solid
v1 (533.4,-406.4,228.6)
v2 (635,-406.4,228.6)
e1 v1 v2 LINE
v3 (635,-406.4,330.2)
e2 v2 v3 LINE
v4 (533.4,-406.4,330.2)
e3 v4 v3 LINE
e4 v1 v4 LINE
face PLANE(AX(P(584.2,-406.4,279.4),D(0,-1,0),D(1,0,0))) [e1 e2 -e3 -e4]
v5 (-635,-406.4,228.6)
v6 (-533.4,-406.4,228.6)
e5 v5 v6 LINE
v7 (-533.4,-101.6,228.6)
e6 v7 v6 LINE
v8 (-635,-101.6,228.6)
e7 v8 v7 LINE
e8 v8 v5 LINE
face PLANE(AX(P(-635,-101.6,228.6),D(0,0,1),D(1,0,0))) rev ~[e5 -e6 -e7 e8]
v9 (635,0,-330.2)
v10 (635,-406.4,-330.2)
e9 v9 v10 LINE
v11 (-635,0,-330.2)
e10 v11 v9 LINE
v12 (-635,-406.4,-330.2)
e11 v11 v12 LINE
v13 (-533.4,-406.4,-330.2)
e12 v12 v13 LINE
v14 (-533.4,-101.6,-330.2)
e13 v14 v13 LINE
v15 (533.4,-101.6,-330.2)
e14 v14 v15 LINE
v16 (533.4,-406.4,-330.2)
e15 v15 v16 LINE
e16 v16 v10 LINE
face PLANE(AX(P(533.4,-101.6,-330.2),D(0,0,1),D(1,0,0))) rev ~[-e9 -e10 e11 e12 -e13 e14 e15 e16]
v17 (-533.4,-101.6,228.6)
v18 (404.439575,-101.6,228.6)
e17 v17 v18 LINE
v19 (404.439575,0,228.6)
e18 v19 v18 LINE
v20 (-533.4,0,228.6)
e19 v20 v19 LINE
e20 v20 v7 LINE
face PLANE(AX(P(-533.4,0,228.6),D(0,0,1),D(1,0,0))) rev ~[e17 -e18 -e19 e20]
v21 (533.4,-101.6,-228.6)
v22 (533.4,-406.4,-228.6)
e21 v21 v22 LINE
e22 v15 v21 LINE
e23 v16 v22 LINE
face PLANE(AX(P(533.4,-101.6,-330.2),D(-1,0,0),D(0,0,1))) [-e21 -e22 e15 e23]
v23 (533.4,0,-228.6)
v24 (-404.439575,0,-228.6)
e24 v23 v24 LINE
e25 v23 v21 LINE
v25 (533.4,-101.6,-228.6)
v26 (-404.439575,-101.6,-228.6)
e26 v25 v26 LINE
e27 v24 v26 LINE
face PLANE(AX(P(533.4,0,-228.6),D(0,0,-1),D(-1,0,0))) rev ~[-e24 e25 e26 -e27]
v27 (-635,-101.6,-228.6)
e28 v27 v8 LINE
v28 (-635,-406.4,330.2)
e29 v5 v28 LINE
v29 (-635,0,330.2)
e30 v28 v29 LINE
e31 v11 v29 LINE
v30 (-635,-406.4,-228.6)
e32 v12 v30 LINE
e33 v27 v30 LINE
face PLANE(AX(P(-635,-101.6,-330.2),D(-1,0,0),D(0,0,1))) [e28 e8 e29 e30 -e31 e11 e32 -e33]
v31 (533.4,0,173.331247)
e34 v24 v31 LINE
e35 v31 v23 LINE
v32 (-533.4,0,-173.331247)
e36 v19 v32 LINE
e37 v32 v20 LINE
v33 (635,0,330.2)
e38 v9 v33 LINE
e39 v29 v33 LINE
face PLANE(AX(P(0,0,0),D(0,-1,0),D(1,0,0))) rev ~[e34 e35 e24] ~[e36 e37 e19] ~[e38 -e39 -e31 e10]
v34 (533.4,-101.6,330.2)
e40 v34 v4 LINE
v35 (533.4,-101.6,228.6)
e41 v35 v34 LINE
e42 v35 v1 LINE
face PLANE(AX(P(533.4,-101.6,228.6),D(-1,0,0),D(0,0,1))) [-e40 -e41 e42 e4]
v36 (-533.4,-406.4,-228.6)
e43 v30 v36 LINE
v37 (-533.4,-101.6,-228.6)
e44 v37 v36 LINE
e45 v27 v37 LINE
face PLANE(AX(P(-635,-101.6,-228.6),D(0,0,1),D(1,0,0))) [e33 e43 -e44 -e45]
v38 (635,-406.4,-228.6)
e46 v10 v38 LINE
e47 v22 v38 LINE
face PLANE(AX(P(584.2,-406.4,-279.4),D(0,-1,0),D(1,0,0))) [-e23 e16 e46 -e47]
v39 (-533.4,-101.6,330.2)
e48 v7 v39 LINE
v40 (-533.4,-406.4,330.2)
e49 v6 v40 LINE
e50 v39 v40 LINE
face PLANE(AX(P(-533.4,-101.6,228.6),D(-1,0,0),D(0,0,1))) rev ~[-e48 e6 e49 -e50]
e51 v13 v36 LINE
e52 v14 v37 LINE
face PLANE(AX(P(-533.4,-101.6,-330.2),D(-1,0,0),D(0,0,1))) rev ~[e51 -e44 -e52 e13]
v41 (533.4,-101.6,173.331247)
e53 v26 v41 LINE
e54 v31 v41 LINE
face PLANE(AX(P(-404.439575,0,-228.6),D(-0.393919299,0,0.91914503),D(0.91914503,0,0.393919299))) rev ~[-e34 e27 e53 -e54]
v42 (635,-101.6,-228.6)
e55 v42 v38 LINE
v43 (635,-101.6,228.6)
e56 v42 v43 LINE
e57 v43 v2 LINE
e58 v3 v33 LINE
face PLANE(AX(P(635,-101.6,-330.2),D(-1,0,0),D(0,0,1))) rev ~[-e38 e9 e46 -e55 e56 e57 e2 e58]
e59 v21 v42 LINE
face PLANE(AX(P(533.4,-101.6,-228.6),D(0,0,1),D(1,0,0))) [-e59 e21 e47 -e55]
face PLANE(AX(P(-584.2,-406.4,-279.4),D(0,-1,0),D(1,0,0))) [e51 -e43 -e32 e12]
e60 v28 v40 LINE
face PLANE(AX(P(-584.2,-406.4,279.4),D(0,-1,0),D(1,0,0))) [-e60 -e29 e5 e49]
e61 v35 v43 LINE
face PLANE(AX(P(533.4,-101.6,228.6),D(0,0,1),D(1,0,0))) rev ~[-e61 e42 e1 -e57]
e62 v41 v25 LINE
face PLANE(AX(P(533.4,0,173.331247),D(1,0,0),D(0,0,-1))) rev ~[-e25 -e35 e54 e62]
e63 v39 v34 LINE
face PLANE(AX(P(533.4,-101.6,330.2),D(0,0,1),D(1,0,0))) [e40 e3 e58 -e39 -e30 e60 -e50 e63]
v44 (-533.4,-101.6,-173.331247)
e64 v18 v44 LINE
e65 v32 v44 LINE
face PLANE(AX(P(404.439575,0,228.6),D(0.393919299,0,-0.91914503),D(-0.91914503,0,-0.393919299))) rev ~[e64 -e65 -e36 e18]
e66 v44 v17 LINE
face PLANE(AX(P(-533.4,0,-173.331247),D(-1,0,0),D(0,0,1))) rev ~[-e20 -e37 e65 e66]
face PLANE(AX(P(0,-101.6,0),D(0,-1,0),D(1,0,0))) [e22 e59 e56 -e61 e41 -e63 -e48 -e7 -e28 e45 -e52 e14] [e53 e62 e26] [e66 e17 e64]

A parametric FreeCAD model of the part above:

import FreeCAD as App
import Part
import Sketcher
Q = App.Units.Quantity

doc = App.newDocument("Part")
body = doc.addObject("PartDesign::Body", "Body")

# Sketch on XZ plane
sketch1 = doc.addObject("Sketcher::SketchObject", "Sketch")
body.addObject(sketch1)
sketch1.AttachmentSupport = (doc.XZ_Plane, [""])
sketch1.MapMode = "FlatFace"
sketch1.addGeometry(Part.LineSegment(App.Vector(-635, 330, 0), App.Vector(-635, -330, 0)), False)
sketch1.addGeometry(Part.LineSegment(App.Vector(-635, -330, 0), App.Vector(635, -330, 0)), False)
sketch1.addGeometry(Part.LineSegment(App.Vector(635, -330, 0), App.Vector(635, 330, 0)), False)
sketch1.addGeometry(Part.LineSegment(App.Vector(635, 330, 0), App.Vector(-635, 330, 0)), False)
sketch1.addGeometry(Part.LineSegment(App.Vector(533, 173, 0), App.Vector(533, -229, 0)), False)
sketch1.addGeometry(Part.LineSegment(App.Vector(533, -229, 0), App.Vector(-404, -229, 0)), False)
sketch1.addGeometry(Part.LineSegment(App.Vector(-404, -229, 0), App.Vector(533, 173, 0)), False)
sketch1.addGeometry(Part.LineSegment(App.Vector(-533, -173, 0), App.Vector(-533, 229, 0)), False)
sketch1.addGeometry(Part.LineSegment(App.Vector(-533, 229, 0), App.Vector(404, 229, 0)), False)
sketch1.addGeometry(Part.LineSegment(App.Vector(404, 229, 0), App.Vector(-533, -173, 0)), False)
sketch1.addConstraint(Sketcher.Constraint("Coincident", 0, 2, 1, 1))
sketch1.addConstraint(Sketcher.Constraint("Coincident", 1, 2, 2, 1))
sketch1.addConstraint(Sketcher.Constraint("Coincident", 2, 2, 3, 1))
sketch1.addConstraint(Sketcher.Constraint("Coincident", 3, 2, 0, 1))
sketch1.addConstraint(Sketcher.Constraint("Coincident", 4, 2, 5, 1))
sketch1.addConstraint(Sketcher.Constraint("Coincident", 5, 2, 6, 1))
sketch1.addConstraint(Sketcher.Constraint("Coincident", 6, 2, 4, 1))
sketch1.addConstraint(Sketcher.Constraint("Coincident", 7, 2, 8, 1))
sketch1.addConstraint(Sketcher.Constraint("Coincident", 8, 2, 9, 1))
sketch1.addConstraint(Sketcher.Constraint("Coincident", 9, 2, 7, 1))
sketch1.addConstraint(Sketcher.Constraint("Vertical", 0))
sketch1.addConstraint(Sketcher.Constraint("Horizontal", 1))
sketch1.addConstraint(Sketcher.Constraint("Vertical", 2))
sketch1.addConstraint(Sketcher.Constraint("Horizontal", 3))
sketch1.addConstraint(Sketcher.Constraint("Vertical", 4))
sketch1.addConstraint(Sketcher.Constraint("Horizontal", 5))
sketch1.addConstraint(Sketcher.Constraint("Vertical", 7))
sketch1.addConstraint(Sketcher.Constraint("Horizontal", 8))
sketch1.addConstraint(Sketcher.Constraint("Symmetric", 0, 2, 2, 2, -1, 1))
sketch1.addConstraint(Sketcher.Constraint("Symmetric", 4, 2, 7, 2, -1, 1))
sketch1.addConstraint(Sketcher.Constraint("Parallel", 6, 9))
sketch1.addConstraint(Sketcher.Constraint("Equal", 5, 8))
sketch1.addConstraint(Sketcher.Constraint("DistanceX", 1, 1, 1, 2, Q("50 in")))
sketch1.addConstraint(Sketcher.Constraint("DistanceY", 0, 2, 0, 1, Q("26 in")))
sketch1.addConstraint(Sketcher.Constraint("DistanceX", -1, 1, 4, 2, Q("21 in")))
sketch1.addConstraint(Sketcher.Constraint("DistanceY", 4, 2, -1, 1, Q("9 in")))
sketch1.addConstraint(Sketcher.Constraint("Distance", 6, 1020.339059))
sketch1.addConstraint(Sketcher.Constraint("DistanceX", 5, 2, 5, 1, 937.839575))
pad1 = doc.addObject("PartDesign::Pad", "Pad")
body.addObject(pad1)
pad1.Profile = sketch1
pad1.Length = Q("4 in")

# Sketch on XZ plane
sketch2 = doc.addObject("Sketcher::SketchObject", "Sketch001")
body.addObject(sketch2)
sketch2.AttachmentSupport = (doc.XZ_Plane, [""])
sketch2.MapMode = "FlatFace"
sketch2.AttachmentOffset = App.Placement(App.Vector(0, 0, 4 * 25.4), App.Rotation())
sketch2.addGeometry(Part.LineSegment(App.Vector(-635, 330, 0), App.Vector(-635, 229, 0)), False)
sketch2.addGeometry(Part.LineSegment(App.Vector(-635, 229, 0), App.Vector(-533, 229, 0)), False)
sketch2.addGeometry(Part.LineSegment(App.Vector(-533, 229, 0), App.Vector(-533, 330, 0)), False)
sketch2.addGeometry(Part.LineSegment(App.Vector(-533, 330, 0), App.Vector(-635, 330, 0)), False)
sketch2.addConstraint(Sketcher.Constraint("Coincident", 0, 2, 1, 1))
sketch2.addConstraint(Sketcher.Constraint("Coincident", 1, 2, 2, 1))
sketch2.addConstraint(Sketcher.Constraint("Coincident", 2, 2, 3, 1))
sketch2.addConstraint(Sketcher.Constraint("Coincident", 3, 2, 0, 1))
sketch2.addConstraint(Sketcher.Constraint("Vertical", 0))
sketch2.addConstraint(Sketcher.Constraint("Horizontal", 1))
sketch2.addConstraint(Sketcher.Constraint("Vertical", 2))
sketch2.addConstraint(Sketcher.Constraint("Horizontal", 3))
sketch2.addConstraint(Sketcher.Constraint("Equal", 3, 0))
sketch2.addConstraint(Sketcher.Constraint("DistanceX", 1, 1, 1, 2, Q("4 in")))
sketch2.addConstraint(Sketcher.Constraint("DistanceX", 0, 2, -1, 1, Q("25 in")))
sketch2.addConstraint(Sketcher.Constraint("DistanceY", -1, 1, 0, 2, Q("9 in")))
pad2 = doc.addObject("PartDesign::Pad", "Pad001")
body.addObject(pad2)
pad2.Profile = sketch2
pad2.Length = Q("12 in")

# Sketch on XZ plane
sketch3 = doc.addObject("Sketcher::SketchObject", "Sketch002")
body.addObject(sketch3)
sketch3.AttachmentSupport = (doc.XZ_Plane, [""])
sketch3.MapMode = "FlatFace"
sketch3.AttachmentOffset = App.Placement(App.Vector(0, 0, 4 * 25.4), App.Rotation())
sketch3.addGeometry(Part.LineSegment(App.Vector(-635, -229, 0), App.Vector(-635, -330, 0)), False)
sketch3.addGeometry(Part.LineSegment(App.Vector(-635, -330, 0), App.Vector(-533, -330, 0)), False)
sketch3.addGeometry(Part.LineSegment(App.Vector(-533, -330, 0), App.Vector(-533, -229, 0)), False)
sketch3.addGeometry(Part.LineSegment(App.Vector(-533, -229, 0), App.Vector(-635, -229, 0)), False)
sketch3.addConstraint(Sketcher.Constraint("Coincident", 0, 2, 1, 1))
sketch3.addConstraint(Sketcher.Constraint("Coincident", 1, 2, 2, 1))
sketch3.addConstraint(Sketcher.Constraint("Coincident", 2, 2, 3, 1))
sketch3.addConstraint(Sketcher.Constraint("Coincident", 3, 2, 0, 1))
sketch3.addConstraint(Sketcher.Constraint("Vertical", 0))
sketch3.addConstraint(Sketcher.Constraint("Horizontal", 1))
sketch3.addConstraint(Sketcher.Constraint("Vertical", 2))
sketch3.addConstraint(Sketcher.Constraint("Horizontal", 3))
sketch3.addConstraint(Sketcher.Constraint("Equal", 3, 0))
sketch3.addConstraint(Sketcher.Constraint("DistanceX", 1, 1, 1, 2, Q("4 in")))
sketch3.addConstraint(Sketcher.Constraint("DistanceX", 0, 2, -1, 1, Q("25 in")))
sketch3.addConstraint(Sketcher.Constraint("DistanceY", 0, 2, -1, 1, Q("13 in")))
pad3 = doc.addObject("PartDesign::Pad", "Pad002")
body.addObject(pad3)
pad3.Profile = sketch3
pad3.Length = Q("12 in")

# Sketch on XZ plane
sketch4 = doc.addObject("Sketcher::SketchObject", "Sketch003")
body.addObject(sketch4)
sketch4.AttachmentSupport = (doc.XZ_Plane, [""])
sketch4.MapMode = "FlatFace"
sketch4.AttachmentOffset = App.Placement(App.Vector(0, 0, 4 * 25.4), App.Rotation())
sketch4.addGeometry(Part.LineSegment(App.Vector(-635, -229, 0), App.Vector(-635, -330, 0)), False)
sketch4.addGeometry(Part.LineSegment(App.Vector(-635, -330, 0), App.Vector(-533, -330, 0)), False)
sketch4.addGeometry(Part.LineSegment(App.Vector(-533, -330, 0), App.Vector(-533, -229, 0)), False)
sketch4.addGeometry(Part.LineSegment(App.Vector(-533, -229, 0), App.Vector(-635, -229, 0)), False)
sketch4.addConstraint(Sketcher.Constraint("Coincident", 0, 2, 1, 1))
sketch4.addConstraint(Sketcher.Constraint("Coincident", 1, 2, 2, 1))
sketch4.addConstraint(Sketcher.Constraint("Coincident", 2, 2, 3, 1))
sketch4.addConstraint(Sketcher.Constraint("Coincident", 3, 2, 0, 1))
sketch4.addConstraint(Sketcher.Constraint("Vertical", 0))
sketch4.addConstraint(Sketcher.Constraint("Horizontal", 1))
sketch4.addConstraint(Sketcher.Constraint("Vertical", 2))
sketch4.addConstraint(Sketcher.Constraint("Horizontal", 3))
sketch4.addConstraint(Sketcher.Constraint("Equal", 3, 0))
sketch4.addConstraint(Sketcher.Constraint("DistanceX", 1, 1, 1, 2, Q("4 in")))
sketch4.addConstraint(Sketcher.Constraint("DistanceX", 0, 2, -1, 1, Q("25 in")))
sketch4.addConstraint(Sketcher.Constraint("DistanceY", 0, 2, -1, 1, Q("13 in")))
pad4 = doc.addObject("PartDesign::Pad", "Pad003")
body.addObject(pad4)
pad4.Profile = sketch4
pad4.Length = Q("12 in")

# Sketch on XZ plane
sketch5 = doc.addObject("Sketcher::SketchObject", "Sketch004")
body.addObject(sketch5)
sketch5.AttachmentSupport = (doc.XZ_Plane, [""])
sketch5.MapMode = "FlatFace"
sketch5.AttachmentOffset = App.Placement(App.Vector(0, 0, 4 * 25.4), App.Rotation())
sketch5.addGeometry(Part.LineSegment(App.Vector(533, 330, 0), App.Vector(533, 229, 0)), False)
sketch5.addGeometry(Part.LineSegment(App.Vector(533, 229, 0), App.Vector(635, 229, 0)), False)
sketch5.addGeometry(Part.LineSegment(App.Vector(635, 229, 0), App.Vector(635, 330, 0)), False)
sketch5.addGeometry(Part.LineSegment(App.Vector(635, 330, 0), App.Vector(533, 330, 0)), False)
sketch5.addConstraint(Sketcher.Constraint("Coincident", 0, 2, 1, 1))
sketch5.addConstraint(Sketcher.Constraint("Coincident", 1, 2, 2, 1))
sketch5.addConstraint(Sketcher.Constraint("Coincident", 2, 2, 3, 1))
sketch5.addConstraint(Sketcher.Constraint("Coincident", 3, 2, 0, 1))
sketch5.addConstraint(Sketcher.Constraint("Vertical", 0))
sketch5.addConstraint(Sketcher.Constraint("Horizontal", 1))
sketch5.addConstraint(Sketcher.Constraint("Vertical", 2))
sketch5.addConstraint(Sketcher.Constraint("Horizontal", 3))
sketch5.addConstraint(Sketcher.Constraint("Equal", 3, 0))
sketch5.addConstraint(Sketcher.Constraint("DistanceX", 1, 1, 1, 2, Q("4 in")))
sketch5.addConstraint(Sketcher.Constraint("DistanceX", -1, 1, 0, 2, Q("21 in")))
sketch5.addConstraint(Sketcher.Constraint("DistanceY", -1, 1, 0, 2, Q("9 in")))
pad5 = doc.addObject("PartDesign::Pad", "Pad004")
body.addObject(pad5)
pad5.Profile = sketch5
pad5.Length = Q("12 in")

# Sketch on XZ plane
sketch6 = doc.addObject("Sketcher::SketchObject", "Sketch005")
body.addObject(sketch6)
sketch6.AttachmentSupport = (doc.XZ_Plane, [""])
sketch6.MapMode = "FlatFace"
sketch6.AttachmentOffset = App.Placement(App.Vector(0, 0, 4 * 25.4), App.Rotation())
sketch6.addGeometry(Part.LineSegment(App.Vector(533, -229, 0), App.Vector(533, -330, 0)), False)
sketch6.addGeometry(Part.LineSegment(App.Vector(533, -330, 0), App.Vector(635, -330, 0)), False)
sketch6.addGeometry(Part.LineSegment(App.Vector(635, -330, 0), App.Vector(635, -229, 0)), False)
sketch6.addGeometry(Part.LineSegment(App.Vector(635, -229, 0), App.Vector(533, -229, 0)), False)
sketch6.addConstraint(Sketcher.Constraint("Coincident", 0, 2, 1, 1))
sketch6.addConstraint(Sketcher.Constraint("Coincident", 1, 2, 2, 1))
sketch6.addConstraint(Sketcher.Constraint("Coincident", 2, 2, 3, 1))
sketch6.addConstraint(Sketcher.Constraint("Coincident", 3, 2, 0, 1))
sketch6.addConstraint(Sketcher.Constraint("Vertical", 0))
sketch6.addConstraint(Sketcher.Constraint("Horizontal", 1))
sketch6.addConstraint(Sketcher.Constraint("Vertical", 2))
sketch6.addConstraint(Sketcher.Constraint("Horizontal", 3))
sketch6.addConstraint(Sketcher.Constraint("Equal", 3, 0))
sketch6.addConstraint(Sketcher.Constraint("DistanceX", 1, 1, 1, 2, Q("4 in")))
sketch6.addConstraint(Sketcher.Constraint("DistanceX", -1, 1, 0, 2, Q("21 in")))
sketch6.addConstraint(Sketcher.Constraint("DistanceY", 0, 2, -1, 1, Q("13 in")))
pad6 = doc.addObject("PartDesign::Pad", "Pad005")
body.addObject(pad6)
pad6.Profile = sketch6
pad6.Length = Q("12 in")

doc.recompute()
